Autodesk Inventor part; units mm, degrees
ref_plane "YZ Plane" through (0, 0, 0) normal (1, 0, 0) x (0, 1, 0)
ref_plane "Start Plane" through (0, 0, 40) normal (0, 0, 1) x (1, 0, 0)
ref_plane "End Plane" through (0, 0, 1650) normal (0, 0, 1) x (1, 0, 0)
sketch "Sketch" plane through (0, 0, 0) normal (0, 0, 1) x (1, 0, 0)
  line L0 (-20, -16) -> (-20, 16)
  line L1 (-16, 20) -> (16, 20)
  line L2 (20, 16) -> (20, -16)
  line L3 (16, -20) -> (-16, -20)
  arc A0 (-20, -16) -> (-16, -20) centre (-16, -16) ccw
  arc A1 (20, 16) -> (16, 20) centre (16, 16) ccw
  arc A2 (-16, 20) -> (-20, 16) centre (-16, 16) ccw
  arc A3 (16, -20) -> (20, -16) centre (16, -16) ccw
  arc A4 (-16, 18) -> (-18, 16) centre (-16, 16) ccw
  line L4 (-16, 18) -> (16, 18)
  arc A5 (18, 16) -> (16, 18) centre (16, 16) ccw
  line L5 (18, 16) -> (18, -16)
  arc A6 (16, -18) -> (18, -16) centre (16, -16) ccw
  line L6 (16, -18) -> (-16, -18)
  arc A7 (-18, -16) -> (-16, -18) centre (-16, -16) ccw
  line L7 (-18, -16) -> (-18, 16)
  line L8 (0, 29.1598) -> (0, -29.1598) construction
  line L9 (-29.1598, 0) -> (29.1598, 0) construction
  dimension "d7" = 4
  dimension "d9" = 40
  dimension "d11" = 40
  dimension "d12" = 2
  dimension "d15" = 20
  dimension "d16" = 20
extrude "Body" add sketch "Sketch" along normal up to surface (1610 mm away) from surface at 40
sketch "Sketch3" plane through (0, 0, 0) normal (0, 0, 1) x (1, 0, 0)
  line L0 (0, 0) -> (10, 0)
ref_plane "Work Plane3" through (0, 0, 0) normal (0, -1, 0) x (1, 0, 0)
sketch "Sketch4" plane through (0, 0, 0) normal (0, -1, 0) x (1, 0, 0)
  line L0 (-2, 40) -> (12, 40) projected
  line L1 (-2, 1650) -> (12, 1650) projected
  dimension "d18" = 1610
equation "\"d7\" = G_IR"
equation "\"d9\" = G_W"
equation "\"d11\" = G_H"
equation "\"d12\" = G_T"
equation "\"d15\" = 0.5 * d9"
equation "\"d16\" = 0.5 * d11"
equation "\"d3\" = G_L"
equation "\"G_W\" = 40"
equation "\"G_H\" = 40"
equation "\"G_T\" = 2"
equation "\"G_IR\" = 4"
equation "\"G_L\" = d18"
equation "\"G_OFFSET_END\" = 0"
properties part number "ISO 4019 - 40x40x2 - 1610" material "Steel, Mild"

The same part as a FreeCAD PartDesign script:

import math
import FreeCAD as App
import Part
import Sketcher
from FreeCAD import Vector

doc = App.newDocument("Part")
params = doc.addObject("Spreadsheet::Sheet", "Params")
for row, (alias, value) in enumerate([
    ("sketch1_radius", "4 mm"),
    ("sketch1_radius2", "2 mm"),
    ("pad1_length", "1610 mm"),
], start=1):
    params.set(f"A{row}", alias)
    params.set(f"B{row}", "=" + value)
    params.setAlias(f"B{row}", alias)

body = doc.addObject("PartDesign::Body", "Body")

# Sketch on XY plane
sketch1 = doc.addObject("Sketcher::SketchObject", "Sketch")
body.addObject(sketch1)
sketch1.AttachmentSupport = (doc.XY_Plane, [""])
sketch1.MapMode = "FlatFace"
sketch1.AttachmentOffset = App.Placement(Vector(0, 0, 40), App.Rotation())
sketch1.addGeometry([
    Part.LineSegment(Vector(-20, 16, 0), Vector(-20, -16, 0)),  # 0
    Part.ArcOfCircle(Part.Circle(Vector(-16, -16, 0), Vector(0, 0, 1), 4), math.radians(180), math.radians(270)),  # 1
    Part.LineSegment(Vector(-16, -20, 0), Vector(16, -20, 0)),  # 2
    Part.ArcOfCircle(Part.Circle(Vector(16, -16, 0), Vector(0, 0, 1), 4), math.radians(-90), math.radians(0)),  # 3
    Part.LineSegment(Vector(20, -16, 0), Vector(20, 16, 0)),  # 4
    Part.ArcOfCircle(Part.Circle(Vector(16, 16, 0), Vector(0, 0, 1), 4), math.radians(0), math.radians(90)),  # 5
    Part.LineSegment(Vector(16, 20, 0), Vector(-16, 20, 0)),  # 6
    Part.ArcOfCircle(Part.Circle(Vector(-16, 16, 0), Vector(0, 0, 1), 4), math.radians(90), math.radians(180)),  # 7
    Part.ArcOfCircle(Part.Circle(Vector(-16, 16, 0), Vector(0, 0, 1), 2), math.radians(90), math.radians(180)),  # 8
    Part.LineSegment(Vector(-16, 18, 0), Vector(16, 18, 0)),  # 9
    Part.ArcOfCircle(Part.Circle(Vector(16, 16, 0), Vector(0, 0, 1), 2), math.radians(0), math.radians(90)),  # 10
    Part.LineSegment(Vector(18, 16, 0), Vector(18, -16, 0)),  # 11
    Part.ArcOfCircle(Part.Circle(Vector(16, -16, 0), Vector(0, 0, 1), 2), math.radians(-90), math.radians(0)),  # 12
    Part.LineSegment(Vector(16, -18, 0), Vector(-16, -18, 0)),  # 13
    Part.ArcOfCircle(Part.Circle(Vector(-16, -16, 0), Vector(0, 0, 1), 2), math.radians(180), math.radians(270)),  # 14
    Part.LineSegment(Vector(-18, -16, 0), Vector(-18, 16, 0)),  # 15
], False)
sketch1.addConstraint([
    Sketcher.Constraint("Tangent", 0, 2, 1, 1),
    Sketcher.Constraint("Tangent", 1, 2, 2, 1),
    Sketcher.Constraint("Tangent", 2, 2, 3, 1),
    Sketcher.Constraint("Tangent", 3, 2, 4, 1),
    Sketcher.Constraint("Tangent", 4, 2, 5, 1),
    Sketcher.Constraint("Tangent", 5, 2, 6, 1),
    Sketcher.Constraint("Tangent", 6, 2, 7, 1),
    Sketcher.Constraint("Tangent", 7, 2, 0, 1),
    Sketcher.Constraint("Tangent", 8, 1, 9, 1),
    Sketcher.Constraint("Tangent", 9, 2, 10, 2),
    Sketcher.Constraint("Tangent", 10, 1, 11, 1),
    Sketcher.Constraint("Tangent", 11, 2, 12, 2),
    Sketcher.Constraint("Tangent", 12, 1, 13, 1),
    Sketcher.Constraint("Tangent", 13, 2, 14, 2),
    Sketcher.Constraint("Tangent", 14, 1, 15, 1),
    Sketcher.Constraint("Tangent", 15, 2, 8, 2),
    Sketcher.Constraint("Vertical", 0),
    Sketcher.Constraint("Horizontal", 2),
    Sketcher.Constraint("Vertical", 4),
    Sketcher.Constraint("Horizontal", 6),
    Sketcher.Constraint("Horizontal", 9),
    Sketcher.Constraint("Vertical", 11),
    Sketcher.Constraint("Horizontal", 13),
    Sketcher.Constraint("Vertical", 15),
    Sketcher.Constraint("Coincident", 8, 3, 7, 3),
    Sketcher.Constraint("Coincident", 10, 3, 5, 3),
    Sketcher.Constraint("Coincident", 12, 3, 3, 3),
    Sketcher.Constraint("Equal", 1, 3),
    Sketcher.Constraint("Equal", 3, 5),
    Sketcher.Constraint("Equal", 5, 7),
    Sketcher.Constraint("Equal", 12, 14),
    Sketcher.Constraint("Symmetric", 1, 3, 5, 3, -1, 1),
    Sketcher.Constraint("Equal", 13, 0),
    Sketcher.Constraint("Radius", 1, 4.0),
    Sketcher.Constraint("Radius", 8, 2.0),
    Sketcher.Constraint("DistanceX", 0, 2, -1, 1, 20.0),
])
sketch1.setExpression("Constraints[33]", "Params.sketch1_radius")
sketch1.setExpression("Constraints[34]", "Params.sketch1_radius2")
pad1 = doc.addObject("PartDesign::Pad", "Pad")
body.addObject(pad1)
pad1.Profile = sketch1
pad1.setExpression("Length", "Params.pad1_length")

doc.recompute()
